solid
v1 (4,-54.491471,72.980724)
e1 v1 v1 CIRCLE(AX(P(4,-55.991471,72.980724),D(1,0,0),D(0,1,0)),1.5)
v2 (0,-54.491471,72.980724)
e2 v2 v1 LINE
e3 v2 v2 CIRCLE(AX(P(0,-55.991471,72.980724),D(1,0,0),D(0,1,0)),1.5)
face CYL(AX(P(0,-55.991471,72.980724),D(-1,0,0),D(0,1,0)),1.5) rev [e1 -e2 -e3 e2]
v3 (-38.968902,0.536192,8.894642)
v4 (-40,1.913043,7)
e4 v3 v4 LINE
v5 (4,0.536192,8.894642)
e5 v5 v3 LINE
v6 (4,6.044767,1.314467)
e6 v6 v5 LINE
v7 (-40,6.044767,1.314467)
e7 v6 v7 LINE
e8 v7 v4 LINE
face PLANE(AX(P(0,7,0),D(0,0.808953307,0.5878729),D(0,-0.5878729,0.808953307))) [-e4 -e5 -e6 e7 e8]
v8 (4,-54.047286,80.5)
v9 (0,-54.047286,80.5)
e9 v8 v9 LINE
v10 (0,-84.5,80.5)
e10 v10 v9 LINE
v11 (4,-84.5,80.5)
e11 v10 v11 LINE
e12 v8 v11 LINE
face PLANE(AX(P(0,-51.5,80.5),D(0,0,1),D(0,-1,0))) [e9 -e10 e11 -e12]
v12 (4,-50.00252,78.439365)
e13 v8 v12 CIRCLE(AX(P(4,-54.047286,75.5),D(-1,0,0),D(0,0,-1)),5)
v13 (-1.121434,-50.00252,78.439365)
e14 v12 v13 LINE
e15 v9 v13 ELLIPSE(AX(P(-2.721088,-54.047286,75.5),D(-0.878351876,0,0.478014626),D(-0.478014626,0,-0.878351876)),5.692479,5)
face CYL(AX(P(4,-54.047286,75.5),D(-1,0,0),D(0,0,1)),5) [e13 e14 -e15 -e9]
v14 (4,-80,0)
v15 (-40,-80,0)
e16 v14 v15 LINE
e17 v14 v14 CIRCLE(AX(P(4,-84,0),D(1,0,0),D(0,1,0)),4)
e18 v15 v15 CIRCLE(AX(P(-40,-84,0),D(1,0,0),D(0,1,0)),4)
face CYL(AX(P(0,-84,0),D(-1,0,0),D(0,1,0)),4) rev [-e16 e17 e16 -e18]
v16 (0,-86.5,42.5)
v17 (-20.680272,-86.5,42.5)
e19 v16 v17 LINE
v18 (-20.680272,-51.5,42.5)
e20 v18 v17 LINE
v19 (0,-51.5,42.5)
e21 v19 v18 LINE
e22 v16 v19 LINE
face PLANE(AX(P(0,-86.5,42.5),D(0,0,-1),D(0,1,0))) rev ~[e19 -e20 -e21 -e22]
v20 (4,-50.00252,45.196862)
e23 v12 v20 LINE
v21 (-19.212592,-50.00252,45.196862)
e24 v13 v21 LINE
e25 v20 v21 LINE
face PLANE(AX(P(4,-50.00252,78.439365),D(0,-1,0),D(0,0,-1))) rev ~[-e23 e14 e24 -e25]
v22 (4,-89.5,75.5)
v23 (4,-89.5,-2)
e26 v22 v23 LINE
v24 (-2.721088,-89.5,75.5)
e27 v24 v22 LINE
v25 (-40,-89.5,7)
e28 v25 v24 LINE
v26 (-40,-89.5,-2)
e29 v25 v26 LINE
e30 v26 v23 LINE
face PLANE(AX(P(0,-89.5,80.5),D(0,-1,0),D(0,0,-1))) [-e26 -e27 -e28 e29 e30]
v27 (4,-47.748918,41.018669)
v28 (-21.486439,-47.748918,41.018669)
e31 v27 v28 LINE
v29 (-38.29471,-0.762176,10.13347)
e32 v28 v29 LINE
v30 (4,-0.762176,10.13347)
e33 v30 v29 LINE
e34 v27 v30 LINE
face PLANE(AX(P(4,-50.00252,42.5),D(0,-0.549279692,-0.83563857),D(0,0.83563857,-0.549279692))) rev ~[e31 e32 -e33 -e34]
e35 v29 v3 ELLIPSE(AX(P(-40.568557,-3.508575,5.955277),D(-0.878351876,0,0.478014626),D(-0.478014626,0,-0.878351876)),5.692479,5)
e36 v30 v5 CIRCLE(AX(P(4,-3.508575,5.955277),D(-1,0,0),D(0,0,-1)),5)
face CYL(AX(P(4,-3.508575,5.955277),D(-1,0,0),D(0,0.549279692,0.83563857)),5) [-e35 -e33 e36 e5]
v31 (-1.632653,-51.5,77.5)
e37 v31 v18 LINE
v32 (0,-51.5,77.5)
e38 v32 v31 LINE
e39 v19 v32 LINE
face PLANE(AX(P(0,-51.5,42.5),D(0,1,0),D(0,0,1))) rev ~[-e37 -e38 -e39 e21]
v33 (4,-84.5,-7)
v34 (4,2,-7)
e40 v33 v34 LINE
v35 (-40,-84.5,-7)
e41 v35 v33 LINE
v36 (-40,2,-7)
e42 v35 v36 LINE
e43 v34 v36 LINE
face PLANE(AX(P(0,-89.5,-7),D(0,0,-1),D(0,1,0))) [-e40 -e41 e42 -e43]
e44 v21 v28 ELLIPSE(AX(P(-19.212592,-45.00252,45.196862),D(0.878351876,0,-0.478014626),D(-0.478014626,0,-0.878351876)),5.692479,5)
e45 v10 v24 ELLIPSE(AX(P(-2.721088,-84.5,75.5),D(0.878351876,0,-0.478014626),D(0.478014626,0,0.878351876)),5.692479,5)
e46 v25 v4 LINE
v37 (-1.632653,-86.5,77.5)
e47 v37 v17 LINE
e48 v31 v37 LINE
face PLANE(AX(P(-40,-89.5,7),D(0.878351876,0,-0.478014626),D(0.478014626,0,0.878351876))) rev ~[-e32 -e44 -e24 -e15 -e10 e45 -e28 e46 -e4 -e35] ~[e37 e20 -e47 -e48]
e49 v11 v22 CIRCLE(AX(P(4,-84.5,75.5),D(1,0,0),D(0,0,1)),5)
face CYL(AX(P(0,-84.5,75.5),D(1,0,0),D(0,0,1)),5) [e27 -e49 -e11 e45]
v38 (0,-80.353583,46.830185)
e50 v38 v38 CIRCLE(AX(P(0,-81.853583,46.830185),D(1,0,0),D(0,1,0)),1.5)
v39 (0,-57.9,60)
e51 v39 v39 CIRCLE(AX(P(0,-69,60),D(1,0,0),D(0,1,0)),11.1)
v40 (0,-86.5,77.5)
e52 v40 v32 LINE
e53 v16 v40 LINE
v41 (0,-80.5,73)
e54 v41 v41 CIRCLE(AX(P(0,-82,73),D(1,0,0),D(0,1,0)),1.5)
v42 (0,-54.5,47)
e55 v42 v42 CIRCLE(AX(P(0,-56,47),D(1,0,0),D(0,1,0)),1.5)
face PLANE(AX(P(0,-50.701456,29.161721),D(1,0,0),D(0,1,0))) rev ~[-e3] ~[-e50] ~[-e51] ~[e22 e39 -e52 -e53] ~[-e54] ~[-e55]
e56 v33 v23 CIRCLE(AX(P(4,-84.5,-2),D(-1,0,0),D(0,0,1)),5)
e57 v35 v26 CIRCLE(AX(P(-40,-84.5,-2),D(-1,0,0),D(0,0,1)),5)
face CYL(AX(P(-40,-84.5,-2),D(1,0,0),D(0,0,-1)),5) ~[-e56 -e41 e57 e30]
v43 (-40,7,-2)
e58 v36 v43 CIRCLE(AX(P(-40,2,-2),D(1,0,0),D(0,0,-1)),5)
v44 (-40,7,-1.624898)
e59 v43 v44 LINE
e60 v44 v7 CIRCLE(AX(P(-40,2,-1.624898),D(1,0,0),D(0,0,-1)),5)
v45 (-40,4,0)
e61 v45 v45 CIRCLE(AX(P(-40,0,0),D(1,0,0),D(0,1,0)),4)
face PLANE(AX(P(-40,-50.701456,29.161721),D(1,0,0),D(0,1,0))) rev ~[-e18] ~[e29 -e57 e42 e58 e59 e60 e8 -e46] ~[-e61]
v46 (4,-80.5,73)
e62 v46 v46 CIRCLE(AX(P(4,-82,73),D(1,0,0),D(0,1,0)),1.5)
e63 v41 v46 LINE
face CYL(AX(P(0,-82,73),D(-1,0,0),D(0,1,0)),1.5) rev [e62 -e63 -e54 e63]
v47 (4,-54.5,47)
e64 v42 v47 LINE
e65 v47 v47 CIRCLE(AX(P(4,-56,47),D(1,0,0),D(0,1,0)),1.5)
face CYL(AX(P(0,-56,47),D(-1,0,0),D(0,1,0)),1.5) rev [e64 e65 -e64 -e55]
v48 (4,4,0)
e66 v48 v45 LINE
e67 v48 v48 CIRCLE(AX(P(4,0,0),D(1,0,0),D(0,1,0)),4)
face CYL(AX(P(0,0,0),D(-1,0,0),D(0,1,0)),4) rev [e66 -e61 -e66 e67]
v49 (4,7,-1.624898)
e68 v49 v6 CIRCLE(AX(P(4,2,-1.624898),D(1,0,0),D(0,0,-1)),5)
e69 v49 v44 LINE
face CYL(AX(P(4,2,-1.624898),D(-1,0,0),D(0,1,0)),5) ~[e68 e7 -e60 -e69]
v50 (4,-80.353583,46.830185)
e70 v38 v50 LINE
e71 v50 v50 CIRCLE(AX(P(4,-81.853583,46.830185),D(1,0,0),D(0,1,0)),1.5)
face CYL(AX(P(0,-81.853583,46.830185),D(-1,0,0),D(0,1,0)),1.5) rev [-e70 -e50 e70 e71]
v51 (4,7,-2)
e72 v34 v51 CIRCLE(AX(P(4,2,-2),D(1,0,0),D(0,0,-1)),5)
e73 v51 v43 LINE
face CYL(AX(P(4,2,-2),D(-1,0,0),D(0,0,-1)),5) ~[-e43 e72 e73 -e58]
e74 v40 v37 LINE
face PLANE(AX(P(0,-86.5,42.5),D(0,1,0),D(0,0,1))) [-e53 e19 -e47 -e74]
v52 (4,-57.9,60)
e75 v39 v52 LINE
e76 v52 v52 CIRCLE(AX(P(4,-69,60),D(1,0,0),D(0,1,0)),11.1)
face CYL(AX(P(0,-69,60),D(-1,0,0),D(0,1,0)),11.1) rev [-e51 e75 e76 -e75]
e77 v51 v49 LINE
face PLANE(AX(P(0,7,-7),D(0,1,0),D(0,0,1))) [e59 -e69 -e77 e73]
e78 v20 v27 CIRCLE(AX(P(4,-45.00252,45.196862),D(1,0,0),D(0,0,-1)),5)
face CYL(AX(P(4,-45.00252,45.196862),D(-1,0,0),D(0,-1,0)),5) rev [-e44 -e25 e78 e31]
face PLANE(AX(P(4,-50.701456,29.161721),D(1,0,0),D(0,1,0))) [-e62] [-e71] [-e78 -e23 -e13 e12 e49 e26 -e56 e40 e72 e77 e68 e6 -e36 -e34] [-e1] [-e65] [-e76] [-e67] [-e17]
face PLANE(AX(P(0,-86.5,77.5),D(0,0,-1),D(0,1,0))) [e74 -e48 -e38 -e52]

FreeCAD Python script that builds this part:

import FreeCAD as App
import Part
import Sketcher

V = App.Vector


def edges_at(feature, points):
    """Names of the edges that pass closest to the given points."""
    edges = feature.Shape.Edges
    near = lambda p: min(range(len(edges)), key=lambda i: edges[i].distToShape(Part.Vertex(*p))[0])
    return sorted({f"Edge{near(p) + 1}" for p in points})


def add_polygon(sketch, points):
    """Adds a closed chain of lines whose ends are joined by coincident constraints."""
    first, n = sketch.GeometryCount, len(points)
    for a, b in zip(points, points[1:] + points[:1]):
        sketch.addGeometry(Part.LineSegment(App.Vector(*a, 0), App.Vector(*b, 0)), False)
    for i in range(n):
        sketch.addConstraint(Sketcher.Constraint("Coincident", first + i, 2, first + (i + 1) % n, 1))

doc = App.newDocument("Part")
body = doc.addObject("PartDesign::Body", "Body")

sketch1 = doc.addObject("Sketcher::SketchObject", "Sketch")
body.addObject(sketch1)
sketch1.AttachmentSupport = (doc.YZ_Plane, [""])
sketch1.MapMode = "FlatFace"
add_polygon(sketch1, [(-51.5, 80.5), (-89.5, 80.5), (-89.5, -7), (7, -7), (7, 0)])
sketch1.addGeometry(Part.Circle(V(-84, 0, 0), V(0, 0, 1), 4), False)
sketch1.addGeometry(Part.Circle(V(0, 0, 0), V(0, 0, 1), 4), False)
sketch1.addGeometry(Part.Circle(V(-81.9, 46.8, 0), V(0, 0, 1), 1.5), False)
sketch1.addGeometry(Part.Circle(V(-56, 47, 0), V(0, 0, 1), 1.5), False)
sketch1.addGeometry(Part.Circle(V(-69, 60, 0), V(0, 0, 1), 11.1), False)
sketch1.addGeometry(Part.Circle(V(-82, 73, 0), V(0, 0, 1), 1.5), False)
sketch1.addGeometry(Part.Circle(V(-56, 73, 0), V(0, 0, 1), 1.5), False)
sketch1.addConstraint([
    Sketcher.Constraint("Horizontal", 0),
    Sketcher.Constraint("Vertical", 1),
    Sketcher.Constraint("Horizontal", 2),
    Sketcher.Constraint("Vertical", 3),
    Sketcher.Constraint("Coincident", 6, 3, -1, 1),
    Sketcher.Constraint("Equal", 5, 6),
    Sketcher.Constraint("Equal", 7, 8),
    Sketcher.Constraint("Equal", 8, 10),
    Sketcher.Constraint("Equal", 10, 11),
    Sketcher.Constraint("PointOnObject", 5, 3, -1),
    Sketcher.Constraint("PointOnObject", 3, 2, -1),
    Sketcher.Constraint("Diameter", 5, 8.0),
    Sketcher.Constraint("Diameter", 7, 3.0),
    Sketcher.Constraint("Diameter", 9, 22.2),
    Sketcher.Constraint("DistanceX", 0, 2, 0, 1, 38.0),
    Sketcher.Constraint("DistanceY", 3, 1, 3, 2, 7.0),
    Sketcher.Constraint("DistanceX", 2, 1, 2, 2, 96.5),
    Sketcher.Constraint("DistanceY", 1, 2, 1, 1, 87.5),
    Sketcher.Constraint("DistanceX", 5, 3, -1, 1, 84.0),
    Sketcher.Constraint("DistanceX", 8, 3, -1, 1, 56.0),
    Sketcher.Constraint("DistanceY", -1, 1, 8, 3, 47.0),
    Sketcher.Constraint("DistanceX", 9, 3, -1, 1, 69.0),
    Sketcher.Constraint("DistanceY", -1, 1, 9, 3, 60.0),
    Sketcher.Constraint("DistanceX", 10, 3, -1, 1, 82.0),
    Sketcher.Constraint("DistanceY", -1, 1, 10, 3, 73.0),
    Sketcher.Constraint("DistanceX", -1, 1, 2, 2, 7.0),
    Sketcher.Constraint("DistanceX", 11, 3, -1, 1, 55.991471),
    Sketcher.Constraint("DistanceY", 7, 3, 11, 3, 26.15054),
    Sketcher.Constraint("DistanceX", 7, 3, -1, 1, 81.853583),
    Sketcher.Constraint("DistanceY", -1, 1, 7, 3, 46.830185),
])
pad1 = doc.addObject("PartDesign::Pad", "Pad")
body.addObject(pad1)
pad1.Profile = sketch1
pad1.Length = 4

sketch2 = doc.addObject("Sketcher::SketchObject", "Sketch001")
body.addObject(sketch2)
sketch2.AttachmentSupport = (doc.YZ_Plane, [""])
sketch2.MapMode = "FlatFace"
add_polygon(sketch2, [(-51.5, 80.5), (-89.5, 80.5), (-89.5, -7), (7, -7), (7, 0)])
sketch2.addGeometry(Part.Circle(V(-84, 0, 0), V(0, 0, 1), 4), False)
sketch2.addGeometry(Part.Circle(V(0, 0, 0), V(0, 0, 1), 4), False)
add_polygon(sketch2, [(-51.5, 42.5), (-86.5, 42.5), (-86.5, 77.5), (-51.5, 77.5)])
sketch2.addConstraint([
    Sketcher.Constraint("Horizontal", 0),
    Sketcher.Constraint("Vertical", 1),
    Sketcher.Constraint("Horizontal", 2),
    Sketcher.Constraint("Vertical", 3),
    Sketcher.Constraint("Horizontal", 7),
    Sketcher.Constraint("Vertical", 8),
    Sketcher.Constraint("Horizontal", 9),
    Sketcher.Constraint("Vertical", 10),
    Sketcher.Constraint("Coincident", 6, 3, -1, 1),
    Sketcher.Constraint("Equal", 5, 6),
    Sketcher.Constraint("PointOnObject", 5, 3, -1),
    Sketcher.Constraint("PointOnObject", 3, 2, -1),
    Sketcher.Constraint("Vertical", 4, 2, 9, 2),
    Sketcher.Constraint("Equal", 9, 8),
    Sketcher.Constraint("Diameter", 5, 8.0),
    Sketcher.Constraint("DistanceX", 0, 2, 0, 1, 38.0),
    Sketcher.Constraint("DistanceX", 7, 2, 7, 1, 35.0),
    Sketcher.Constraint("DistanceY", 3, 1, 3, 2, 7.0),
    Sketcher.Constraint("DistanceX", 2, 1, 2, 2, 96.5),
    Sketcher.Constraint("DistanceY", 1, 2, 1, 1, 87.5),
    Sketcher.Constraint("DistanceX", 5, 3, -1, 1, 84.0),
    Sketcher.Constraint("DistanceX", -1, 1, 2, 2, 7.0),
    Sketcher.Constraint("DistanceY", 7, 2, 0, 2, 38.0),
])
pad2 = doc.addObject("PartDesign::Pad", "Pad001")
body.addObject(pad2)
pad2.Profile = sketch2
pad2.Length = 40
pad2.Reversed = True

sketch3 = doc.addObject("Sketcher::SketchObject", "Sketch002")
body.addObject(sketch3)
sketch3.AttachmentSupport = (doc.XZ_Plane, [""])
sketch3.MapMode = "FlatFace"
sketch3.AttachmentOffset = App.Placement(V(0, 0, 89.5), App.Rotation())
add_polygon(sketch3, [(-40, 7), (0, 80), (-40, 80)])
sketch3.addConstraint([
    Sketcher.Constraint("Horizontal", 1),
    Sketcher.Constraint("Vertical", 2),
    Sketcher.Constraint("PointOnObject", 0, 2, -2),
    Sketcher.Constraint("DistanceX", 1, 2, 1, 1, 40.0),
    Sketcher.Constraint("DistanceY", 2, 2, 2, 1, 73.5),
    Sketcher.Constraint("DistanceY", -1, 1, 2, 2, 7.0),
])
pocket1 = doc.addObject("PartDesign::Pocket", "Pocket")
body.addObject(pocket1)
pocket1.Profile = sketch3
pocket1.Type = "ThroughAll"
doc.recompute()

fillet = doc.addObject("PartDesign::Fillet", "Fillet")
body.addObject(fillet)
fillet.Base = (pocket1, edges_at(pocket1, [
    (-18, -89.5, -7),
    (-18, 7, -7),
    (-18, 7, 0),
    (2, -89.5, 80.5),
    (2, -51.5, 80.5),
]))
fillet.Radius = 5

sketch4 = doc.addObject("Sketcher::SketchObject", "Sketch003")
body.addObject(sketch4)
sketch4.AttachmentSupport = (doc.YZ_Plane, [""])
sketch4.MapMode = "FlatFace"
sketch4.AttachmentOffset = App.Placement(V(0, 0, 4), App.Rotation())
add_polygon(sketch4, [(-24, 42), (-50, 78), (-50, 42)])
sketch4.addConstraint([
    Sketcher.Constraint("Vertical", 1),
    Sketcher.Constraint("Horizontal", 2),
    Sketcher.Constraint("DistanceY", -1, 1, 1, 2, 42.5),
    Sketcher.Constraint("DistanceX", 2, 1, 2, 2, 26.117426),
    Sketcher.Constraint("DistanceY", 1, 2, 1, 1, 35.939365),
    Sketcher.Constraint("DistanceX", 0, 2, -1, 1, 50.00252),
])
pocket2 = doc.addObject("PartDesign::Pocket", "Pocket001")
body.addObject(pocket2)
pocket2.Profile = sketch4
pocket2.Type = "ThroughAll"

sketch5 = doc.addObject("Sketcher::SketchObject", "Sketch004")
body.addObject(sketch5)
sketch5.AttachmentSupport = (doc.YZ_Plane, [""])
sketch5.MapMode = "FlatFace"
sketch5.AttachmentOffset = App.Placement(V(0, 0, 4), App.Rotation())
add_polygon(sketch5, [(0, 10), (-24, 42), (-50, 42)])
sketch5.addConstraint([
    Sketcher.Constraint("Horizontal", 1),
    Sketcher.Constraint("PointOnObject", 2, 2, -2),
    Sketcher.Constraint("DistanceY", -1, 1, 0, 2, 42.5),
    Sketcher.Constraint("Distance", 0, 40.629689),
    Sketcher.Constraint("DistanceX", 1, 2, 1, 1, 26.117426),
    Sketcher.Constraint("DistanceX", 1, 2, -1, 1, 50.00252),
])
pocket3 = doc.addObject("PartDesign::Pocket", "Pocket002")
body.addObject(pocket3)
pocket3.Profile = sketch5
pocket3.Type = "ThroughAll"
doc.recompute()

fillet2 = doc.addObject("PartDesign::Fillet", "Fillet001")
body.addObject(fillet2)
fillet2.Base = (pocket3, edges_at(pocket3, [(-8.34, -50.003, 42.5), (-17.284, 0, 9.632)]))
fillet2.Radius = 5

doc.recompute()
